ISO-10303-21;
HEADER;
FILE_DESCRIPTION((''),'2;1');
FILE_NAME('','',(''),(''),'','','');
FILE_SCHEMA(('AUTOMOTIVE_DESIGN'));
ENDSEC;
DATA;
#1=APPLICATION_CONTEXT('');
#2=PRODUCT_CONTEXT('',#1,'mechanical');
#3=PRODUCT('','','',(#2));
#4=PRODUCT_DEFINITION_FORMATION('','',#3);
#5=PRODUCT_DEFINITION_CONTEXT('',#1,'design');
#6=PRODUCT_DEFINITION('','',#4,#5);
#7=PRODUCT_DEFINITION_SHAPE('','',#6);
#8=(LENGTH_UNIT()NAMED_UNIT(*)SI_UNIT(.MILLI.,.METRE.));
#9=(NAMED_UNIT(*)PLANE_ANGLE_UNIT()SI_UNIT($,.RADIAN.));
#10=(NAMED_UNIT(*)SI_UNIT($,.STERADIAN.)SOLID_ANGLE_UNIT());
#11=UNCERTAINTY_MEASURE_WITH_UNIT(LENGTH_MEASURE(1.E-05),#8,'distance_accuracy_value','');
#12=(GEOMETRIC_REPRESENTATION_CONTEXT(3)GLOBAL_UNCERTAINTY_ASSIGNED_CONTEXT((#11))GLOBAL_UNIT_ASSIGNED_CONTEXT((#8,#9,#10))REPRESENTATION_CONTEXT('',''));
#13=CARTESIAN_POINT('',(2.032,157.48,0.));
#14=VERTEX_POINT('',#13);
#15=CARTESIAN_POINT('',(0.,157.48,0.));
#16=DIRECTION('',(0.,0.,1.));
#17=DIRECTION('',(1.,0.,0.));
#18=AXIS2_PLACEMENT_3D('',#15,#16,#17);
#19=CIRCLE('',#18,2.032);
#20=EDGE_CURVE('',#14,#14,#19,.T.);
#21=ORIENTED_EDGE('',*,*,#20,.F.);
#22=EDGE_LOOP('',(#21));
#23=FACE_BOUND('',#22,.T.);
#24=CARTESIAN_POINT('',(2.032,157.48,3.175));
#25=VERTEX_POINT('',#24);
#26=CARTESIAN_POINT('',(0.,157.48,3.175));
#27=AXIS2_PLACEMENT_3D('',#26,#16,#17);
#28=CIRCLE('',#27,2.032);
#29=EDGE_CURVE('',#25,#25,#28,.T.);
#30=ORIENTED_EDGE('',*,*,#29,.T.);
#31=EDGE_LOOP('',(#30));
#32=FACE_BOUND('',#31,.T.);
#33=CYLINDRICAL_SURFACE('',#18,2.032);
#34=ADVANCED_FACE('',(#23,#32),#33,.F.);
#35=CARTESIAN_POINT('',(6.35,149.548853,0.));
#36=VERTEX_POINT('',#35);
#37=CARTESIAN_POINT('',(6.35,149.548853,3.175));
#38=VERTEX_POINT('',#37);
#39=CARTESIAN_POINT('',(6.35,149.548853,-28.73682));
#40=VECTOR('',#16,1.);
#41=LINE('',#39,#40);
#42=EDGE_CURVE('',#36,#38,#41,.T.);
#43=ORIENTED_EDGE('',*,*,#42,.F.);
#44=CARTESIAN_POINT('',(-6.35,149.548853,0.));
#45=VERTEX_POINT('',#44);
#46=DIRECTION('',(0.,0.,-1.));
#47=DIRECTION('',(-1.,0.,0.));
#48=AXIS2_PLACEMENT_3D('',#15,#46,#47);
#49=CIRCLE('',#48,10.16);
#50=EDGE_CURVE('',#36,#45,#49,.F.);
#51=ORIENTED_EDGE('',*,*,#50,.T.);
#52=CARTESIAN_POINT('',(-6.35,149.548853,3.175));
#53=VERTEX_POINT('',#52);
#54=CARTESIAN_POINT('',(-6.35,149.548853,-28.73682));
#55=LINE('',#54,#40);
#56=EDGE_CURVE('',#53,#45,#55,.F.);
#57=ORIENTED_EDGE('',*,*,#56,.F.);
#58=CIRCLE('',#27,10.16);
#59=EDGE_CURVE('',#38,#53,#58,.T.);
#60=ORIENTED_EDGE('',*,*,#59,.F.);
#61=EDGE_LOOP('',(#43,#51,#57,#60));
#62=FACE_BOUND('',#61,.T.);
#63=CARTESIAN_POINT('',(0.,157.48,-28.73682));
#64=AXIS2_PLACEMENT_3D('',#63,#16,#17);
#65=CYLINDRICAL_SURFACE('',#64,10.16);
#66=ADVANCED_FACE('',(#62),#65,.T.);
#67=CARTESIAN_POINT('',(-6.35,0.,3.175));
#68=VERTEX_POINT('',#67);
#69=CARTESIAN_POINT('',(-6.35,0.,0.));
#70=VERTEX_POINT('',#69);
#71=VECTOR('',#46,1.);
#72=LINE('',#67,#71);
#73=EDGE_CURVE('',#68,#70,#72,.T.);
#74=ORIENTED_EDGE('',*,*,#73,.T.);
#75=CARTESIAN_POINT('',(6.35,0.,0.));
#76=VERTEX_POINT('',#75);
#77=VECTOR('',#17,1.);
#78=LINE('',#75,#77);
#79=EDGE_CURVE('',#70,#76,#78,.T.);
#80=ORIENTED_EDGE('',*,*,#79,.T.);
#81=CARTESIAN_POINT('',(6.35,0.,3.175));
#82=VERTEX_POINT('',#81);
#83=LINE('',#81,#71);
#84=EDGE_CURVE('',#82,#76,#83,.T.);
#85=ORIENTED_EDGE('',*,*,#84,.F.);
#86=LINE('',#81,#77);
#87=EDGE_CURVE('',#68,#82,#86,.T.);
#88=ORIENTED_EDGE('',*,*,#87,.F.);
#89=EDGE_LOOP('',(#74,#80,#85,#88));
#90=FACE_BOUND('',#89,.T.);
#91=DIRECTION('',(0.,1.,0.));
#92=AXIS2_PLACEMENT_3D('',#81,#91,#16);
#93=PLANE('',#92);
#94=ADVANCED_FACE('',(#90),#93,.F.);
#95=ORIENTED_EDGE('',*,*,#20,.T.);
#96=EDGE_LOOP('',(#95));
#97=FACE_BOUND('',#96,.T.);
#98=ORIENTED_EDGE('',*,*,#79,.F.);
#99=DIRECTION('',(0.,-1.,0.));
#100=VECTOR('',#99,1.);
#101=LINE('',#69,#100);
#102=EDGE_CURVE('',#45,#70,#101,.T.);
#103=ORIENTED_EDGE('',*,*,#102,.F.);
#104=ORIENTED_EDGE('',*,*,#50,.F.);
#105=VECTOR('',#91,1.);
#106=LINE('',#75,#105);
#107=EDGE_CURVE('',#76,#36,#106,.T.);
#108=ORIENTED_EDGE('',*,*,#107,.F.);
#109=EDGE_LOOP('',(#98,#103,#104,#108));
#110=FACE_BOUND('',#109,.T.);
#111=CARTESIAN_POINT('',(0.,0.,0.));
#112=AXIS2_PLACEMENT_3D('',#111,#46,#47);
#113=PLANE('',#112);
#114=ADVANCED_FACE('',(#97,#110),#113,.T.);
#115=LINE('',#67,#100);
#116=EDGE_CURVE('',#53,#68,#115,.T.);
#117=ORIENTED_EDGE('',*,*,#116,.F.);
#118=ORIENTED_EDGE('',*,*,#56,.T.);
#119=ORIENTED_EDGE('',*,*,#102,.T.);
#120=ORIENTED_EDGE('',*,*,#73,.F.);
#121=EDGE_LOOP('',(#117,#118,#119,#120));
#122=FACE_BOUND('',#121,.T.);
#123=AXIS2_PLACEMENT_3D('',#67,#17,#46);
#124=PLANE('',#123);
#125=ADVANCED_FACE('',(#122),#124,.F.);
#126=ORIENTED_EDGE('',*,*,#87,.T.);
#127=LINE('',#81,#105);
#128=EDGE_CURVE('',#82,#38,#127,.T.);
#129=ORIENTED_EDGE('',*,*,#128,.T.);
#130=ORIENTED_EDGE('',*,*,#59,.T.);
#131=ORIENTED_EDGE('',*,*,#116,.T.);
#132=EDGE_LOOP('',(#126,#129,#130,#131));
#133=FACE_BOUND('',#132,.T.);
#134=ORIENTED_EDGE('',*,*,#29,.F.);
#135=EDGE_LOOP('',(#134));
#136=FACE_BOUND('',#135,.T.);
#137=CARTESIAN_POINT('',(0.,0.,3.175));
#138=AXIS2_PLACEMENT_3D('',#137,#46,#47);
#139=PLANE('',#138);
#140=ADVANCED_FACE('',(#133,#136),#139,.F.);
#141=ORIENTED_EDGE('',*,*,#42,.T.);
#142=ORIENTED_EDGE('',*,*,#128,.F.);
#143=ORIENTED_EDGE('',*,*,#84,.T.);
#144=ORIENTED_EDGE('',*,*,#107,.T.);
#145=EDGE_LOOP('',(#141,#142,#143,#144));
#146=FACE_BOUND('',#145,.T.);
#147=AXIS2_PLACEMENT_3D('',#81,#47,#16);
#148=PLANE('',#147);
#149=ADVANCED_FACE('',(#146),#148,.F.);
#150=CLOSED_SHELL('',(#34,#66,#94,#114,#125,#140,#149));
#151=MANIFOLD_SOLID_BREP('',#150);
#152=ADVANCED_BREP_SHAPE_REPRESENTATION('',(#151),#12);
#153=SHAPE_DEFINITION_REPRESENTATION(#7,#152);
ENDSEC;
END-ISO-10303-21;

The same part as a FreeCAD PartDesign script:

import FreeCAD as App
import Part
import Sketcher

V = App.Vector
Q = App.Units.Quantity


def add_polygon(sketch, points):
    """Adds a closed chain of lines whose ends are joined by coincident constraints."""
    first, n = sketch.GeometryCount, len(points)
    for a, b in zip(points, points[1:] + points[:1]):
        sketch.addGeometry(Part.LineSegment(App.Vector(*a, 0), App.Vector(*b, 0)), False)
    for i in range(n):
        sketch.addConstraint(Sketcher.Constraint("Coincident", first + i, 2, first + (i + 1) % n, 1))

doc = App.newDocument("Part")
params = doc.addObject("Spreadsheet::Sheet", "Params")
for row, (alias, value) in enumerate([
    ("sketch1_width", "0.5 in"),
    ("sketch1_height", "6.5 in"),
    ("pad1_length", "0.125 in"),
    ("sketch2_diameter", "0.8 in"),
    ("pad2_length", "0.125 in"),
    ("sketch3_diameter", "0.16 in"),
], start=1):
    params.set(f"A{row}", alias)
    params.set(f"B{row}", "=" + value)
    params.setAlias(f"B{row}", alias)

body = doc.addObject("PartDesign::Body", "Body")

# Sketch on XY plane
sketch1 = doc.addObject("Sketcher::SketchObject", "Sketch")
body.addObject(sketch1)
sketch1.AttachmentSupport = (doc.XY_Plane, [""])
sketch1.MapMode = "FlatFace"
add_polygon(sketch1, [(-6, 165), (-6, 0), (6, 0), (6, 165)])  # lines 0-3
sketch1.addConstraint([
    Sketcher.Constraint("Vertical", 0),
    Sketcher.Constraint("Horizontal", 1),
    Sketcher.Constraint("Vertical", 2),
    Sketcher.Constraint("Horizontal", 3),
    Sketcher.Constraint("Symmetric", 0, 2, 1, 2, -1, 1),
    Sketcher.Constraint("DistanceX", 1, 1, 1, 2, Q("0.5 in")),
    Sketcher.Constraint("DistanceY", 0, 2, 0, 1, Q("6.5 in")),
])
sketch1.setExpression("Constraints[9]", "Params.sketch1_width")
sketch1.setExpression("Constraints[10]", "Params.sketch1_height")
pad1 = doc.addObject("PartDesign::Pad", "Pad")
body.addObject(pad1)
pad1.Profile = sketch1
pad1.setExpression("Length", "Params.pad1_length")

# Sketch on XY plane
sketch2 = doc.addObject("Sketcher::SketchObject", "Sketch001")
body.addObject(sketch2)
sketch2.AttachmentSupport = (doc.XY_Plane, [""])
sketch2.MapMode = "FlatFace"
sketch2.AttachmentOffset = App.Placement(V(0, 0, 0.125 * 25.4), App.Rotation())
sketch2.addGeometry(Part.Circle(V(0, 157, 0), V(0, 0, 1), 10), False)
sketch2.addConstraint([
    Sketcher.Constraint("PointOnObject", 0, 3, -2),
    Sketcher.Constraint("Diameter", 0, Q("0.8 in")),
    Sketcher.Constraint("DistanceY", -1, 1, 0, 3, Q("6.2 in")),
])
sketch2.setExpression("Constraints[1]", "Params.sketch2_diameter")
pad2 = doc.addObject("PartDesign::Pad", "Pad001")
body.addObject(pad2)
pad2.Profile = sketch2
pad2.setExpression("Length", "Params.pad2_length")
pad2.Reversed = True

# Sketch on XY plane
sketch3 = doc.addObject("Sketcher::SketchObject", "Sketch002")
body.addObject(sketch3)
sketch3.AttachmentSupport = (doc.XY_Plane, [""])
sketch3.MapMode = "FlatFace"
sketch3.AttachmentOffset = App.Placement(V(0, 0, 0.125 * 25.4), App.Rotation())
sketch3.addGeometry(Part.Circle(V(0, 157.5, 0), V(0, 0, 1), 2), False)
sketch3.addConstraint([
    Sketcher.Constraint("PointOnObject", 0, 3, -2),
    Sketcher.Constraint("Diameter", 0, Q("0.16 in")),
    Sketcher.Constraint("DistanceY", -1, 1, 0, 3, Q("6.2 in")),
])
sketch3.setExpression("Constraints[1]", "Params.sketch3_diameter")
pocket1 = doc.addObject("PartDesign::Pocket", "Pocket")
body.addObject(pocket1)
pocket1.Profile = sketch3
pocket1.Type = "ThroughAll"

doc.recompute()
